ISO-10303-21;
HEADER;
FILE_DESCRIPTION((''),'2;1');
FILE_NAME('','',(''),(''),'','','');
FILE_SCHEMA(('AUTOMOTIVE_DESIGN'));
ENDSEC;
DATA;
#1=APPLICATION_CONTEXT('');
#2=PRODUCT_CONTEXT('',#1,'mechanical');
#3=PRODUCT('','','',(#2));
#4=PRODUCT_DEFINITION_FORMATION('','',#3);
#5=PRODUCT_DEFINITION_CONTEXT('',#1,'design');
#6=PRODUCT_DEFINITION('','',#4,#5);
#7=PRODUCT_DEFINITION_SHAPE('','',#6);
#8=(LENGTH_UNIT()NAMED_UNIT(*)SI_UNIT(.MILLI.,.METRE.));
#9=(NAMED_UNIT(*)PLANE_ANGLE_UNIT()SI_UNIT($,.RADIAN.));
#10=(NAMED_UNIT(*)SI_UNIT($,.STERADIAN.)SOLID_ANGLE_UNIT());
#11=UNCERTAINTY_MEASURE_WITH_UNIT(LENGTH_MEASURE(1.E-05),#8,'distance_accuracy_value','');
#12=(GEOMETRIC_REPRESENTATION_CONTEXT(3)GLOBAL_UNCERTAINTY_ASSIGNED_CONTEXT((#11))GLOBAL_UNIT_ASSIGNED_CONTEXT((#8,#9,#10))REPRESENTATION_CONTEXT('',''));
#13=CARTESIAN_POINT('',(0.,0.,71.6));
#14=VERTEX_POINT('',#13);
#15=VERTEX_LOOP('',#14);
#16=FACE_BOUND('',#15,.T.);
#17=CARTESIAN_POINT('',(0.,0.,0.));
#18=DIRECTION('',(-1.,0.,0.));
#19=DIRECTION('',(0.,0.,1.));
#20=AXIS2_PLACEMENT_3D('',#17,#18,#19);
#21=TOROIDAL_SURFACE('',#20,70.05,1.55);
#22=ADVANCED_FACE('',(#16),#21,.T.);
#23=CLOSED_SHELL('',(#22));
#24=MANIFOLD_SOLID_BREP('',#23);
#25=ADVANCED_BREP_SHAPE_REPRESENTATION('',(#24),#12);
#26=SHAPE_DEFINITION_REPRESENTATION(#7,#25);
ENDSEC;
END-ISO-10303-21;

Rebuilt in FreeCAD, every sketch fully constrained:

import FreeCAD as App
import Part
import Sketcher

V = App.Vector
Q = App.Units.Quantity

doc = App.newDocument("Part")
body = doc.addObject("PartDesign::Body", "Body")

# Sketch on XY plane
sketch1 = body.newObject("Sketcher::SketchObject", "Sketch")
sketch1.AttachmentSupport = (doc.getObject("XY_Plane"), [""])
sketch1.MapMode = "FlatFace"
sketch1.addGeometry(Part.Circle(V(0, 70.05, 0), V(0, 0, 1), 1.55), False)
sketch1.addConstraint([
    Sketcher.Constraint("PointOnObject", 0, 3, -2),
    Sketcher.Constraint("Diameter", 0, Q("3.1 mm")),
    Sketcher.Constraint("DistanceY", -1, 1, 0, 3, Q("70.05 mm")),
])
revolution = body.newObject("PartDesign::Revolution", "Revolution")
revolution.Profile = sketch1
revolution.ReferenceAxis = (sketch1, ["H_Axis"])
revolution.Angle = 360

doc.recompute()
